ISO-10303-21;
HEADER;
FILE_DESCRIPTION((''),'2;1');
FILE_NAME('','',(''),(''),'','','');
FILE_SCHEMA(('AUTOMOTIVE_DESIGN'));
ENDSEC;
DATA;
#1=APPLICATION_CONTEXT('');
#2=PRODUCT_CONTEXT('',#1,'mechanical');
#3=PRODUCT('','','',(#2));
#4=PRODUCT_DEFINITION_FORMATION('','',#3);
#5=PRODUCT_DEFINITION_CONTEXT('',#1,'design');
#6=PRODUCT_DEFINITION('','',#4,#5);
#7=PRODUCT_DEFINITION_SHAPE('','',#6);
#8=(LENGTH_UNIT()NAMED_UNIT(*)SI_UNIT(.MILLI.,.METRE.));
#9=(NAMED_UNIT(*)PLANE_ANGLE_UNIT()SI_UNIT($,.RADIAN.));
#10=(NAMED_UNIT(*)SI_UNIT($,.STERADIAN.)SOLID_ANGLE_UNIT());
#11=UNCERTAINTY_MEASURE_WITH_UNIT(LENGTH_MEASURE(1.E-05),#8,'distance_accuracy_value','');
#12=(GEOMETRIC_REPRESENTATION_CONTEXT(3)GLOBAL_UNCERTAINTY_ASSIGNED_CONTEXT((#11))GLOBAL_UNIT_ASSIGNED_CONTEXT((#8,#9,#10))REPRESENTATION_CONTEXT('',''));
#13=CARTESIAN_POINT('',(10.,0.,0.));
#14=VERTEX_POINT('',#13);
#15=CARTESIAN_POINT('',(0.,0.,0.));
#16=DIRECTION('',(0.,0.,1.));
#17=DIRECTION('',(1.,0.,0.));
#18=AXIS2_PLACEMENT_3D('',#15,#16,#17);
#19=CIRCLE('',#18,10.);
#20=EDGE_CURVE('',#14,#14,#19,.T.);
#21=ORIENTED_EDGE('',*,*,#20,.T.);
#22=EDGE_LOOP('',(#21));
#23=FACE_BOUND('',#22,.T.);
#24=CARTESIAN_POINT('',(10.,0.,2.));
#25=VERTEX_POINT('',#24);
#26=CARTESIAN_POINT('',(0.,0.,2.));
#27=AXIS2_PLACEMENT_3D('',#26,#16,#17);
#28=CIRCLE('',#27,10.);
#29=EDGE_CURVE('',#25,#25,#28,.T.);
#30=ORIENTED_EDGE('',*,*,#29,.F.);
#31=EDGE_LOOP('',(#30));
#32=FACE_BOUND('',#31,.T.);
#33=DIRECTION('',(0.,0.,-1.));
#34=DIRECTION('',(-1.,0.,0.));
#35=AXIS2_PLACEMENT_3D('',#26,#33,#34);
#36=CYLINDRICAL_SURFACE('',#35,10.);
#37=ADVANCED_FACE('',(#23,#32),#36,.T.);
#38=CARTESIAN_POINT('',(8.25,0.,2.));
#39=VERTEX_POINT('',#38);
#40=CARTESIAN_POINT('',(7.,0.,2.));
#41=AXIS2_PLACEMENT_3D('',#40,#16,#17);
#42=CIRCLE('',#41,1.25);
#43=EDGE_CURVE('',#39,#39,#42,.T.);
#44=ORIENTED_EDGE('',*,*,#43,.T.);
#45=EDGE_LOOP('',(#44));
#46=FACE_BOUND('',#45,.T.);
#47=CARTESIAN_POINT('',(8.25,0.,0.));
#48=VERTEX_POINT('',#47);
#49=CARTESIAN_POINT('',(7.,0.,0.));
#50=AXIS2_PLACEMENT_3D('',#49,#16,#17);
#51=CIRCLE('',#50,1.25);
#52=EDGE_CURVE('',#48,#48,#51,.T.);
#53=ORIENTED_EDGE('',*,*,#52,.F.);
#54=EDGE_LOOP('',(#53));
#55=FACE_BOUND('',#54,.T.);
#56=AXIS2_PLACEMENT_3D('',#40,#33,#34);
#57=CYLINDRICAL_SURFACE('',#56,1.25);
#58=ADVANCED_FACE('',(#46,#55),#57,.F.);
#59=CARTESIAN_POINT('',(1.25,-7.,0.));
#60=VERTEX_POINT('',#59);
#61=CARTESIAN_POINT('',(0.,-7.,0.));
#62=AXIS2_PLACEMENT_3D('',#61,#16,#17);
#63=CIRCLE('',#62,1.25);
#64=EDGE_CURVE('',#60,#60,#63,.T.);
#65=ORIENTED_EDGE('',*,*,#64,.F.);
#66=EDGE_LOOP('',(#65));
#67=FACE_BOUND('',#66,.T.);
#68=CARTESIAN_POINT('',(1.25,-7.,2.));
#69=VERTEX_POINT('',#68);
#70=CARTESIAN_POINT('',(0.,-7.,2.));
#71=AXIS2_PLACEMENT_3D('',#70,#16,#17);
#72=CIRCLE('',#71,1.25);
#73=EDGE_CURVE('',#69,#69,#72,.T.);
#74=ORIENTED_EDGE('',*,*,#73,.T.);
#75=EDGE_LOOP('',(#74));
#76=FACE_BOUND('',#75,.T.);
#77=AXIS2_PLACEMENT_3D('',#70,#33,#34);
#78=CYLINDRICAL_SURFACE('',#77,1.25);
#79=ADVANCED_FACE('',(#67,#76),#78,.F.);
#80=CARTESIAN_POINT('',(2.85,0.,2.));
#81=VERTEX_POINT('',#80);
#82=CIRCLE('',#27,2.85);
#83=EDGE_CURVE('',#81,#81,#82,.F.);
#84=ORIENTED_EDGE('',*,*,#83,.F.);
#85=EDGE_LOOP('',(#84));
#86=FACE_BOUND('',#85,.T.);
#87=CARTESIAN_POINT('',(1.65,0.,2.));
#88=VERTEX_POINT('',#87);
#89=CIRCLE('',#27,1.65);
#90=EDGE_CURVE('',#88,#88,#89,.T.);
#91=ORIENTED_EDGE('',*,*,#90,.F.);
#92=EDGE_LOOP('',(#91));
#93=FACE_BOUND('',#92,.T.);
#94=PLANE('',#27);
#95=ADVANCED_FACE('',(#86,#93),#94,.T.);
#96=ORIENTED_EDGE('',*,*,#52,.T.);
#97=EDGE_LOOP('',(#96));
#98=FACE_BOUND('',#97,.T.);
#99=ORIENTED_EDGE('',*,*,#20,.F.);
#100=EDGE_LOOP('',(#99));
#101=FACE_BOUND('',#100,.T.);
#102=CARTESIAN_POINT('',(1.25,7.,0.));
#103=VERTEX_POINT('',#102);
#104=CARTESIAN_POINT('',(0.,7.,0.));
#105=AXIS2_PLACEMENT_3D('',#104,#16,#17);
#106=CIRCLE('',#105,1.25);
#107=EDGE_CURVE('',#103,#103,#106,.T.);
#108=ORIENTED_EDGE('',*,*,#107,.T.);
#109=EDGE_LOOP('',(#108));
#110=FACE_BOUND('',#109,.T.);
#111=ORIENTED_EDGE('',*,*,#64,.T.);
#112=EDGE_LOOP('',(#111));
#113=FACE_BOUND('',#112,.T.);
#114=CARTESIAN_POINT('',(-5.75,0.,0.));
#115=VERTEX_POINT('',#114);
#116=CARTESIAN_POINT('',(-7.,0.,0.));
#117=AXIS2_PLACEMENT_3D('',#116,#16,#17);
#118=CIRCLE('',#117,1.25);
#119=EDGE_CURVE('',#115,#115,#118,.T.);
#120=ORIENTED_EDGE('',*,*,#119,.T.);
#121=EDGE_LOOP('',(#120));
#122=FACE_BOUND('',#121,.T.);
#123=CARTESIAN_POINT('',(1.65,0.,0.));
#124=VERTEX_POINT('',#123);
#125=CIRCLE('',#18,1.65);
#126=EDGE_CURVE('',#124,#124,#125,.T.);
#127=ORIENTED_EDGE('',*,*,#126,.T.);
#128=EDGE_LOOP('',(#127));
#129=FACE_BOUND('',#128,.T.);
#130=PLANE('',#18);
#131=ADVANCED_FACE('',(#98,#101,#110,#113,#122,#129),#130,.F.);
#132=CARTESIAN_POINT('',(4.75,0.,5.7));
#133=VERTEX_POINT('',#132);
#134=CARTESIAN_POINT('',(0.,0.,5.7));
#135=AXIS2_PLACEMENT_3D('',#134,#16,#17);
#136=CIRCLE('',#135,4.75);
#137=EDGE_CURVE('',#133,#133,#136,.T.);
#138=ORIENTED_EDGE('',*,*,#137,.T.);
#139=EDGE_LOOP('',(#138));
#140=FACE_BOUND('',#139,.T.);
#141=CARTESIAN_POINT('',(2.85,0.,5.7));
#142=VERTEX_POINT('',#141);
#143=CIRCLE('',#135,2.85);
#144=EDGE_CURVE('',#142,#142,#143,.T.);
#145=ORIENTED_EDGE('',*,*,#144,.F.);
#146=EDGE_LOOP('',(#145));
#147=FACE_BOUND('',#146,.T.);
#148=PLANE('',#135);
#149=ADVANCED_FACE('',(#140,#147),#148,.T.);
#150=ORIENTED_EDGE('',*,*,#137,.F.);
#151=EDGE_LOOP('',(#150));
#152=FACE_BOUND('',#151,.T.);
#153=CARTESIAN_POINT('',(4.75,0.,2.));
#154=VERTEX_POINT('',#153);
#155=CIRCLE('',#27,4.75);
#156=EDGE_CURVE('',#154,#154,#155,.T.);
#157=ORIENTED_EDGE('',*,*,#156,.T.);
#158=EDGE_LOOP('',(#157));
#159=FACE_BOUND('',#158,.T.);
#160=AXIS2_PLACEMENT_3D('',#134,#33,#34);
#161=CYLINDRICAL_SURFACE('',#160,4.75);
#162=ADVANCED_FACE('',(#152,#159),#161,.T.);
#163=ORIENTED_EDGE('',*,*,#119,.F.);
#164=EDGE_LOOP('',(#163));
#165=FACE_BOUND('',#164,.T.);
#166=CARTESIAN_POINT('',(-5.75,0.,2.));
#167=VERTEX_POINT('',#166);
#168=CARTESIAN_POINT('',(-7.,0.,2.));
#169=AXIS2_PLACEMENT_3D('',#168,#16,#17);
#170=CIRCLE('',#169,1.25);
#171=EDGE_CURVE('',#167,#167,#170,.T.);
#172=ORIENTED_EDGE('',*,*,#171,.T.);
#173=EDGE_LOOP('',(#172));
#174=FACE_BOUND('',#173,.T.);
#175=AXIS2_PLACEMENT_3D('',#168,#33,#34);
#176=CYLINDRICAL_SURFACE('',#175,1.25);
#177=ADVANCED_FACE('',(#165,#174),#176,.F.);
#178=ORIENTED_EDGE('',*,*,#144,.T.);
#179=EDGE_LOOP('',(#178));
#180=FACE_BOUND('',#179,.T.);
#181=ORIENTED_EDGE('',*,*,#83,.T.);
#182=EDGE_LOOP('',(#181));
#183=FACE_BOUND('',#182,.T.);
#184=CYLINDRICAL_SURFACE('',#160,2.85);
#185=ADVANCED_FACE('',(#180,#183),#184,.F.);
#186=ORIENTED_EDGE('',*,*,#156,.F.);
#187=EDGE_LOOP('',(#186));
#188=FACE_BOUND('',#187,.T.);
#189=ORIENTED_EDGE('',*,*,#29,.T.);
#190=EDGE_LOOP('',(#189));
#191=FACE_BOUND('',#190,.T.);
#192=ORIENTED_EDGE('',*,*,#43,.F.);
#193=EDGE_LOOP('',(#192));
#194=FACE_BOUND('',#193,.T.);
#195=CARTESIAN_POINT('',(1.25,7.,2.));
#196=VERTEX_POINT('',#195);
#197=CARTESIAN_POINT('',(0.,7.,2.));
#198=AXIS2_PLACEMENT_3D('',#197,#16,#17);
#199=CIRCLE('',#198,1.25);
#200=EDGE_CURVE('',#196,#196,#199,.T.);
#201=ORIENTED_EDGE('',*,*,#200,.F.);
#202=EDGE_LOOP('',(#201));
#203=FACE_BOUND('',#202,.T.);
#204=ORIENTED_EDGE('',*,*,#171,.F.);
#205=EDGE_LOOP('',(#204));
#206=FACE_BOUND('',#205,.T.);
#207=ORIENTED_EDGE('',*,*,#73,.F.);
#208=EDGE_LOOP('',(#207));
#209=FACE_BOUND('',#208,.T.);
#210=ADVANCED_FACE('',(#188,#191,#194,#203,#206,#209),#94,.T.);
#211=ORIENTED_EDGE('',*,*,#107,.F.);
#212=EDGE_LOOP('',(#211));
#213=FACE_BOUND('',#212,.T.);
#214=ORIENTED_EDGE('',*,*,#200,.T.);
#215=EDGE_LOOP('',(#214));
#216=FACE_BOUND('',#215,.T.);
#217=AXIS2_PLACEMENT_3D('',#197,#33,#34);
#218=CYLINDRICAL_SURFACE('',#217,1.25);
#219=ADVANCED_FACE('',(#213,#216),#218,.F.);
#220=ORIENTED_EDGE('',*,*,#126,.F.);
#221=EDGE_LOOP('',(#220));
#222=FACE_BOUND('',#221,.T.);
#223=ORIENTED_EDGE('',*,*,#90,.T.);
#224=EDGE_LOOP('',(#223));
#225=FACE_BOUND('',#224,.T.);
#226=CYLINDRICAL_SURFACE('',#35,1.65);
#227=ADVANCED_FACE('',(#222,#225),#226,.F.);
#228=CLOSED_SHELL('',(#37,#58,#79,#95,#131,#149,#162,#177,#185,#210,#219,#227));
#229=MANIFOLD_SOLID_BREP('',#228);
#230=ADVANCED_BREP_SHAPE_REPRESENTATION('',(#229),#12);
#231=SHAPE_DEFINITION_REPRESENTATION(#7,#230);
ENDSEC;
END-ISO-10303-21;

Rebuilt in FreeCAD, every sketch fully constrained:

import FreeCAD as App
import Part
import Sketcher
from FreeCAD import Vector
Q = App.Units.Quantity

doc = App.newDocument("Part")
body = doc.addObject("PartDesign::Body", "Body")

# Sketch on XY plane
sketch1 = body.newObject("Sketcher::SketchObject", "Sketch")
sketch1.AttachmentSupport = (doc.getObject("XY_Plane"), [""])
sketch1.MapMode = "FlatFace"
sketch1.addGeometry(Part.Circle(Vector(0, 0, 0), Vector(0, 0, 1), 10), False)
sketch1.addGeometry(Part.Circle(Vector(0, -7, 0), Vector(0, 0, 1), 1.2), False)
sketch1.addGeometry(Part.Circle(Vector(-7, 0, 0), Vector(0, 0, 1), 1.2), False)
sketch1.addGeometry(Part.Circle(Vector(0, 0, 0), Vector(0, 0, 1), 1.6), False)
sketch1.addGeometry(Part.Circle(Vector(7, 0, 0), Vector(0, 0, 1), 1.2), False)
sketch1.addGeometry(Part.Circle(Vector(0, 7, 0), Vector(0, 0, 1), 1.2), False)
sketch1.addConstraint(Sketcher.Constraint("Coincident", 0, 3, -1, 1))
sketch1.addConstraint(Sketcher.Constraint("Coincident", 3, 3, -1, 1))
sketch1.addConstraint(Sketcher.Constraint("Equal", 1, 2))
sketch1.addConstraint(Sketcher.Constraint("Equal", 2, 4))
sketch1.addConstraint(Sketcher.Constraint("Equal", 4, 5))
sketch1.addConstraint(Sketcher.Constraint("Symmetric", 2, 3, 4, 3, -1, 1))
sketch1.addConstraint(Sketcher.Constraint("Symmetric", 1, 3, 5, 3, -1, 1))
sketch1.addConstraint(Sketcher.Constraint("PointOnObject", 1, 3, -2))
sketch1.addConstraint(Sketcher.Constraint("PointOnObject", 2, 3, -1))
sketch1.addConstraint(Sketcher.Constraint("Diameter", 0, Q("20 mm")))
sketch1.addConstraint(Sketcher.Constraint("Diameter", 1, Q("2.5 mm")))
sketch1.addConstraint(Sketcher.Constraint("Diameter", 3, Q("3.3 mm")))
sketch1.addConstraint(Sketcher.Constraint("DistanceY", 1, 3, -1, 1, Q("7 mm")))
sketch1.addConstraint(Sketcher.Constraint("DistanceX", 2, 3, -1, 1, Q("7 mm")))
pad1 = body.newObject("PartDesign::Pad", "Pad")
pad1.Profile = sketch1
pad1.Length = 2

# Sketch on XY plane
sketch2 = body.newObject("Sketcher::SketchObject", "Sketch001")
sketch2.AttachmentSupport = (doc.getObject("XY_Plane"), [""])
sketch2.MapMode = "FlatFace"
sketch2.AttachmentOffset = App.Placement(Vector(0, 0, 2), App.Rotation())
sketch2.addGeometry(Part.Circle(Vector(0, 0, 0), Vector(0, 0, 1), 4.8), False)
sketch2.addGeometry(Part.Circle(Vector(0, 0, 0), Vector(0, 0, 1), 2.9), False)
sketch2.addConstraint(Sketcher.Constraint("Coincident", 0, 3, -1, 1))
sketch2.addConstraint(Sketcher.Constraint("Coincident", 1, 3, -1, 1))
sketch2.addConstraint(Sketcher.Constraint("Diameter", 0, Q("9.5 mm")))
sketch2.addConstraint(Sketcher.Constraint("Diameter", 1, Q("5.7 mm")))
pad2 = body.newObject("PartDesign::Pad", "Pad001")
pad2.Profile = sketch2
pad2.Length = 3.7

doc.recompute()
